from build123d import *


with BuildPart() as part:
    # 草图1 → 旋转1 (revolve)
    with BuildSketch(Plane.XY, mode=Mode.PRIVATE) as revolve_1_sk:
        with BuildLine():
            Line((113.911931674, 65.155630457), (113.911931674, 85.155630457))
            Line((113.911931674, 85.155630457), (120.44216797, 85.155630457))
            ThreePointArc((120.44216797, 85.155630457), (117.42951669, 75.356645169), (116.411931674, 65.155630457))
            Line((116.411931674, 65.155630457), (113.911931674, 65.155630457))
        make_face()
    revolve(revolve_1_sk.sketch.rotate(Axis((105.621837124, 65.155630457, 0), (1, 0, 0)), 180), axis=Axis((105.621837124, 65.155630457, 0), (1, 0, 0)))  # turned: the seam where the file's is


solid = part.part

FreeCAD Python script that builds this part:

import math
import FreeCAD as App
import Part
import Sketcher
Q = App.Units.Quantity

doc = App.newDocument("Part")
body = doc.addObject("PartDesign::Body", "Body")

# Sketch on XY plane
sketch1 = body.newObject("Sketcher::SketchObject", "Sketch")
sketch1.AttachmentSupport = (doc.getObject("XY_Plane"), [""])
sketch1.MapMode = "FlatFace"
sketch1.addGeometry(Part.LineSegment(App.Vector(113.911932, 85.15563, 0), App.Vector(113.911932, 65.15563, 0)), False)
sketch1.addGeometry(Part.LineSegment(App.Vector(113.911932, 65.15563, 0), App.Vector(116.411932, 65.15563, 0)), False)
sketch1.addGeometry(Part.ArcOfCircle(Part.Circle(App.Vector(168.051932, 65.15563, 0), App.Vector(0, 0, 1), 51.64), math.radians(157.213605), math.radians(180)), False)
sketch1.addGeometry(Part.LineSegment(App.Vector(120.442168, 85.15563, 0), App.Vector(113.911932, 85.15563, 0)), False)
sketch1.addGeometry(Part.LineSegment(App.Vector(113.911932, 65.15563, 0), App.Vector(168.051932, 65.15563, 0)), True)  # axis
sketch1.addConstraint(Sketcher.Constraint("Coincident", 0, 2, 1, 1))
sketch1.addConstraint(Sketcher.Constraint("Coincident", 1, 2, 2, 2))
sketch1.addConstraint(Sketcher.Constraint("Coincident", 2, 1, 3, 1))
sketch1.addConstraint(Sketcher.Constraint("Coincident", 3, 2, 0, 1))
sketch1.addConstraint(Sketcher.Constraint("Vertical", 0))
sketch1.addConstraint(Sketcher.Constraint("Horizontal", 1))
sketch1.addConstraint(Sketcher.Constraint("Horizontal", 3))
sketch1.addConstraint(Sketcher.Constraint("Horizontal", 4))
sketch1.addConstraint(Sketcher.Constraint("Coincident", 4, 1, 0, 2))
sketch1.addConstraint(Sketcher.Constraint("Coincident", 4, 2, 2, 3))
sketch1.addConstraint(Sketcher.Constraint("DistanceY", 0, 2, 0, 1, Q("20 mm")))
sketch1.addConstraint(Sketcher.Constraint("Radius", 2, Q("51.64 mm")))
sketch1.addConstraint(Sketcher.Constraint("DistanceX", 1, 1, 1, 2, Q("2.5 mm")))
sketch1.addConstraint(Sketcher.Constraint("DistanceX", -1, 1, 2, 3, Q("168.051932 mm")))
sketch1.addConstraint(Sketcher.Constraint("DistanceY", -1, 1, 2, 3, Q("65.15563 mm")))
revolution = body.newObject("PartDesign::Revolution", "Revolution")
revolution.Profile = sketch1
revolution.ReferenceAxis = (sketch1, ["Axis0"])
revolution.Angle = 360

doc.recompute()
